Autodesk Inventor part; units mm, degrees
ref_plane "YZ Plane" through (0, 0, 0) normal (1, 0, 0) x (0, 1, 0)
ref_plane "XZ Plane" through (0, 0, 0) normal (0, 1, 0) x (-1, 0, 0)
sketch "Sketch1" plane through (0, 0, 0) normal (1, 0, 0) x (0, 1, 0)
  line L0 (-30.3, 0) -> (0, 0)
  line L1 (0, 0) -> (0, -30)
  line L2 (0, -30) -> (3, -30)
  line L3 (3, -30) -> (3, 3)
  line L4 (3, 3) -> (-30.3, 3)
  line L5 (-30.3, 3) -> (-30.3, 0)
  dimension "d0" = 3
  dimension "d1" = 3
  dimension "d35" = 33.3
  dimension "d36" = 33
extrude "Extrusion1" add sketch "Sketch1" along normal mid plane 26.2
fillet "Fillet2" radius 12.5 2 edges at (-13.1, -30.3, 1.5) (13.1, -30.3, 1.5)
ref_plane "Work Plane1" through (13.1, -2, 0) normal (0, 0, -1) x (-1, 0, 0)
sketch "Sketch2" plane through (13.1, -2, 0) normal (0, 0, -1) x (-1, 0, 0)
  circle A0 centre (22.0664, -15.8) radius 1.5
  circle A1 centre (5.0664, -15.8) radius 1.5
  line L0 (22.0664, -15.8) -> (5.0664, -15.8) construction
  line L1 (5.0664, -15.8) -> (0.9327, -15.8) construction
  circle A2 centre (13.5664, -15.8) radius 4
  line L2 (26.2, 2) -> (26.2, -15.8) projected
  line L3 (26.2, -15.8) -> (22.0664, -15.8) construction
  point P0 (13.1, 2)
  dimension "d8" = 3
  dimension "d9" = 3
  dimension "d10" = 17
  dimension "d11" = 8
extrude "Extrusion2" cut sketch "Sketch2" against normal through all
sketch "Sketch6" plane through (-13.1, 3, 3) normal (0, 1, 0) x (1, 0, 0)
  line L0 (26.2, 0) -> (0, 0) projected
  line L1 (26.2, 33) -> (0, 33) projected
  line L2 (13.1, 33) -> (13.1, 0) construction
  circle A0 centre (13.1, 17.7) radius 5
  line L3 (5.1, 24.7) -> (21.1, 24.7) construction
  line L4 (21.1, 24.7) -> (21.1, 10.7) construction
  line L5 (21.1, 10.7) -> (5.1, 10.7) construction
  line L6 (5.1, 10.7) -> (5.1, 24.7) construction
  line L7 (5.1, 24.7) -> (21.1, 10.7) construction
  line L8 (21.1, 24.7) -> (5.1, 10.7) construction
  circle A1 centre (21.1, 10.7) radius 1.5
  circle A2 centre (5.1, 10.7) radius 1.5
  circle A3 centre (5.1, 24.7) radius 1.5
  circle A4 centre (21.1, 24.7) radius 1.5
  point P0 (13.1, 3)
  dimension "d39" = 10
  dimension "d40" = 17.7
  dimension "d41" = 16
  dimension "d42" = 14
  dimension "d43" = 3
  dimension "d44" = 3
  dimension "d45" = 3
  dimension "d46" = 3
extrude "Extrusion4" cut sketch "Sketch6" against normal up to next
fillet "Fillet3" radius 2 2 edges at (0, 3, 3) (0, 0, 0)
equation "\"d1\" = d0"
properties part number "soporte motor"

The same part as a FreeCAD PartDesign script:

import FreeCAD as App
import Part
import Sketcher
from FreeCAD import Vector


def edges_at(feature, points):
    """Names of the edges that pass closest to the given points."""
    edges = feature.Shape.Edges
    near = lambda p: min(range(len(edges)), key=lambda i: edges[i].distToShape(Part.Vertex(*p))[0])
    return sorted({f"Edge{near(p) + 1}" for p in points})


def add_polygon(sketch, points):
    """Adds a closed chain of lines whose ends are joined by coincident constraints."""
    first, n = sketch.GeometryCount, len(points)
    for a, b in zip(points, points[1:] + points[:1]):
        sketch.addGeometry(Part.LineSegment(App.Vector(*a, 0), App.Vector(*b, 0)), False)
    for i in range(n):
        sketch.addConstraint(Sketcher.Constraint("Coincident", first + i, 2, first + (i + 1) % n, 1))

doc = App.newDocument("Part")
body = doc.addObject("PartDesign::Body", "Body")

# Sketch on YZ plane
sketch1 = doc.addObject("Sketcher::SketchObject", "Sketch")
body.addObject(sketch1)
sketch1.AttachmentSupport = (doc.YZ_Plane, [""])
sketch1.MapMode = "FlatFace"
add_polygon(sketch1, [(-30.3, 3), (-30.3, 0), (0, 0), (0, -30), (3, -30), (3, 3)])  # lines 0-5
sketch1.addConstraint([
    Sketcher.Constraint("Vertical", 0),
    Sketcher.Constraint("Horizontal", 1),
    Sketcher.Constraint("Vertical", 2),
    Sketcher.Constraint("Horizontal", 3),
    Sketcher.Constraint("Vertical", 4),
    Sketcher.Constraint("Horizontal", 5),
    Sketcher.Constraint("Coincident", 1, 2, -1, 1),
    Sketcher.Constraint("Equal", 3, 0),
    Sketcher.Constraint("DistanceX", 3, 1, 3, 2, 3.0),
    Sketcher.Constraint("DistanceY", 4, 1, 4, 2, 33.0),
    Sketcher.Constraint("DistanceX", 5, 2, 5, 1, 33.3),
])
pad1 = doc.addObject("PartDesign::Pad", "Pad")
body.addObject(pad1)
pad1.Profile = sketch1
pad1.Length = 26.2
pad1.Midplane = True
doc.recompute()

fillet = doc.addObject("PartDesign::Fillet", "Fillet")
body.addObject(fillet)
fillet.Base = (pad1, edges_at(pad1, [(-13.1, -30.3, 1.5), (13.1, -30.3, 1.5)]))
fillet.Radius = 12.5

# Sketch on XY plane
sketch2 = doc.addObject("Sketcher::SketchObject", "Sketch001")
body.addObject(sketch2)
sketch2.AttachmentSupport = (doc.XY_Plane, [""])
sketch2.MapMode = "FlatFace"
sketch2.addGeometry([
    Part.Circle(Vector(-9, -17.8, 0), Vector(0, 0, 1), 1.5),
    Part.Circle(Vector(8, -17.8, 0), Vector(0, 0, 1), 1.5),
    Part.Circle(Vector(-0.5, -17.8, 0), Vector(0, 0, 1), 4),
], False)
sketch2.addConstraint([
    Sketcher.Constraint("Equal", 0, 1),
    Sketcher.Constraint("Horizontal", 0, 3, 1, 3),
    Sketcher.Constraint("Horizontal", 1, 3, 2, 3),
    Sketcher.Constraint("Diameter", 0, 3.0),
    Sketcher.Constraint("Diameter", 2, 8.0),
    Sketcher.Constraint("DistanceX", 0, 3, 1, 3, 17.0),
    Sketcher.Constraint("DistanceY", 0, 3, -1, 1, 17.8),
    Sketcher.Constraint("DistanceX", 0, 3, 2, 3, 8.5),
    Sketcher.Constraint("DistanceX", 0, 3, -1, 1, 8.9664),
])
pocket1 = doc.addObject("PartDesign::Pocket", "Pocket")
body.addObject(pocket1)
pocket1.Profile = sketch2
pocket1.Type = "ThroughAll"
pocket1.Reversed = True

# Sketch on XZ plane
sketch3 = doc.addObject("Sketcher::SketchObject", "Sketch002")
body.addObject(sketch3)
sketch3.AttachmentSupport = (doc.XZ_Plane, [""])
sketch3.MapMode = "FlatFace"
sketch3.AttachmentOffset = App.Placement(Vector(0, 0, -3), App.Rotation())
sketch3.addGeometry([
    Part.Circle(Vector(0, -14.7, 0), Vector(0, 0, 1), 5),  # 0
    Part.Circle(Vector(8, -7.7, 0), Vector(0, 0, 1), 1.5),  # 1
    Part.Circle(Vector(-8, -7.7, 0), Vector(0, 0, 1), 1.5),  # 2
    Part.Circle(Vector(-8, -21.7, 0), Vector(0, 0, 1), 1.5),  # 3
    Part.Circle(Vector(8, -21.7, 0), Vector(0, 0, 1), 1.5),  # 4
], False)
sketch3.addConstraint([
    Sketcher.Constraint("Equal", 1, 2),
    Sketcher.Constraint("Equal", 2, 3),
    Sketcher.Constraint("Equal", 3, 4),
    Sketcher.Constraint("Symmetric", 1, 3, 2, 3, -2),
    Sketcher.Constraint("Symmetric", 3, 3, 4, 3, -2),
    Sketcher.Constraint("PointOnObject", 0, 3, -2),
    Sketcher.Constraint("Vertical", 2, 3, 3, 3),
    Sketcher.Constraint("Diameter", 0, 10.0),
    Sketcher.Constraint("Diameter", 1, 3.0),
    Sketcher.Constraint("DistanceX", 2, 3, 1, 3, 16.0),
    Sketcher.Constraint("DistanceY", 3, 3, 2, 3, 14.0),
    Sketcher.Constraint("DistanceY", 0, 3, 1, 3, 7.0),
    Sketcher.Constraint("DistanceY", 0, 3, -1, 1, 14.7),
])
pocket2 = doc.addObject("PartDesign::Pocket", "Pocket001")
body.addObject(pocket2)
pocket2.Profile = sketch3
pocket2.Type = "UpToFirst"
pocket2.Reversed = True
doc.recompute()

fillet2 = doc.addObject("PartDesign::Fillet", "Fillet001")
body.addObject(fillet2)
fillet2.Base = (pocket2, edges_at(pocket2, [(0, 3, 3), (0, 0, 0)]))
fillet2.Radius = 2

doc.recompute()
